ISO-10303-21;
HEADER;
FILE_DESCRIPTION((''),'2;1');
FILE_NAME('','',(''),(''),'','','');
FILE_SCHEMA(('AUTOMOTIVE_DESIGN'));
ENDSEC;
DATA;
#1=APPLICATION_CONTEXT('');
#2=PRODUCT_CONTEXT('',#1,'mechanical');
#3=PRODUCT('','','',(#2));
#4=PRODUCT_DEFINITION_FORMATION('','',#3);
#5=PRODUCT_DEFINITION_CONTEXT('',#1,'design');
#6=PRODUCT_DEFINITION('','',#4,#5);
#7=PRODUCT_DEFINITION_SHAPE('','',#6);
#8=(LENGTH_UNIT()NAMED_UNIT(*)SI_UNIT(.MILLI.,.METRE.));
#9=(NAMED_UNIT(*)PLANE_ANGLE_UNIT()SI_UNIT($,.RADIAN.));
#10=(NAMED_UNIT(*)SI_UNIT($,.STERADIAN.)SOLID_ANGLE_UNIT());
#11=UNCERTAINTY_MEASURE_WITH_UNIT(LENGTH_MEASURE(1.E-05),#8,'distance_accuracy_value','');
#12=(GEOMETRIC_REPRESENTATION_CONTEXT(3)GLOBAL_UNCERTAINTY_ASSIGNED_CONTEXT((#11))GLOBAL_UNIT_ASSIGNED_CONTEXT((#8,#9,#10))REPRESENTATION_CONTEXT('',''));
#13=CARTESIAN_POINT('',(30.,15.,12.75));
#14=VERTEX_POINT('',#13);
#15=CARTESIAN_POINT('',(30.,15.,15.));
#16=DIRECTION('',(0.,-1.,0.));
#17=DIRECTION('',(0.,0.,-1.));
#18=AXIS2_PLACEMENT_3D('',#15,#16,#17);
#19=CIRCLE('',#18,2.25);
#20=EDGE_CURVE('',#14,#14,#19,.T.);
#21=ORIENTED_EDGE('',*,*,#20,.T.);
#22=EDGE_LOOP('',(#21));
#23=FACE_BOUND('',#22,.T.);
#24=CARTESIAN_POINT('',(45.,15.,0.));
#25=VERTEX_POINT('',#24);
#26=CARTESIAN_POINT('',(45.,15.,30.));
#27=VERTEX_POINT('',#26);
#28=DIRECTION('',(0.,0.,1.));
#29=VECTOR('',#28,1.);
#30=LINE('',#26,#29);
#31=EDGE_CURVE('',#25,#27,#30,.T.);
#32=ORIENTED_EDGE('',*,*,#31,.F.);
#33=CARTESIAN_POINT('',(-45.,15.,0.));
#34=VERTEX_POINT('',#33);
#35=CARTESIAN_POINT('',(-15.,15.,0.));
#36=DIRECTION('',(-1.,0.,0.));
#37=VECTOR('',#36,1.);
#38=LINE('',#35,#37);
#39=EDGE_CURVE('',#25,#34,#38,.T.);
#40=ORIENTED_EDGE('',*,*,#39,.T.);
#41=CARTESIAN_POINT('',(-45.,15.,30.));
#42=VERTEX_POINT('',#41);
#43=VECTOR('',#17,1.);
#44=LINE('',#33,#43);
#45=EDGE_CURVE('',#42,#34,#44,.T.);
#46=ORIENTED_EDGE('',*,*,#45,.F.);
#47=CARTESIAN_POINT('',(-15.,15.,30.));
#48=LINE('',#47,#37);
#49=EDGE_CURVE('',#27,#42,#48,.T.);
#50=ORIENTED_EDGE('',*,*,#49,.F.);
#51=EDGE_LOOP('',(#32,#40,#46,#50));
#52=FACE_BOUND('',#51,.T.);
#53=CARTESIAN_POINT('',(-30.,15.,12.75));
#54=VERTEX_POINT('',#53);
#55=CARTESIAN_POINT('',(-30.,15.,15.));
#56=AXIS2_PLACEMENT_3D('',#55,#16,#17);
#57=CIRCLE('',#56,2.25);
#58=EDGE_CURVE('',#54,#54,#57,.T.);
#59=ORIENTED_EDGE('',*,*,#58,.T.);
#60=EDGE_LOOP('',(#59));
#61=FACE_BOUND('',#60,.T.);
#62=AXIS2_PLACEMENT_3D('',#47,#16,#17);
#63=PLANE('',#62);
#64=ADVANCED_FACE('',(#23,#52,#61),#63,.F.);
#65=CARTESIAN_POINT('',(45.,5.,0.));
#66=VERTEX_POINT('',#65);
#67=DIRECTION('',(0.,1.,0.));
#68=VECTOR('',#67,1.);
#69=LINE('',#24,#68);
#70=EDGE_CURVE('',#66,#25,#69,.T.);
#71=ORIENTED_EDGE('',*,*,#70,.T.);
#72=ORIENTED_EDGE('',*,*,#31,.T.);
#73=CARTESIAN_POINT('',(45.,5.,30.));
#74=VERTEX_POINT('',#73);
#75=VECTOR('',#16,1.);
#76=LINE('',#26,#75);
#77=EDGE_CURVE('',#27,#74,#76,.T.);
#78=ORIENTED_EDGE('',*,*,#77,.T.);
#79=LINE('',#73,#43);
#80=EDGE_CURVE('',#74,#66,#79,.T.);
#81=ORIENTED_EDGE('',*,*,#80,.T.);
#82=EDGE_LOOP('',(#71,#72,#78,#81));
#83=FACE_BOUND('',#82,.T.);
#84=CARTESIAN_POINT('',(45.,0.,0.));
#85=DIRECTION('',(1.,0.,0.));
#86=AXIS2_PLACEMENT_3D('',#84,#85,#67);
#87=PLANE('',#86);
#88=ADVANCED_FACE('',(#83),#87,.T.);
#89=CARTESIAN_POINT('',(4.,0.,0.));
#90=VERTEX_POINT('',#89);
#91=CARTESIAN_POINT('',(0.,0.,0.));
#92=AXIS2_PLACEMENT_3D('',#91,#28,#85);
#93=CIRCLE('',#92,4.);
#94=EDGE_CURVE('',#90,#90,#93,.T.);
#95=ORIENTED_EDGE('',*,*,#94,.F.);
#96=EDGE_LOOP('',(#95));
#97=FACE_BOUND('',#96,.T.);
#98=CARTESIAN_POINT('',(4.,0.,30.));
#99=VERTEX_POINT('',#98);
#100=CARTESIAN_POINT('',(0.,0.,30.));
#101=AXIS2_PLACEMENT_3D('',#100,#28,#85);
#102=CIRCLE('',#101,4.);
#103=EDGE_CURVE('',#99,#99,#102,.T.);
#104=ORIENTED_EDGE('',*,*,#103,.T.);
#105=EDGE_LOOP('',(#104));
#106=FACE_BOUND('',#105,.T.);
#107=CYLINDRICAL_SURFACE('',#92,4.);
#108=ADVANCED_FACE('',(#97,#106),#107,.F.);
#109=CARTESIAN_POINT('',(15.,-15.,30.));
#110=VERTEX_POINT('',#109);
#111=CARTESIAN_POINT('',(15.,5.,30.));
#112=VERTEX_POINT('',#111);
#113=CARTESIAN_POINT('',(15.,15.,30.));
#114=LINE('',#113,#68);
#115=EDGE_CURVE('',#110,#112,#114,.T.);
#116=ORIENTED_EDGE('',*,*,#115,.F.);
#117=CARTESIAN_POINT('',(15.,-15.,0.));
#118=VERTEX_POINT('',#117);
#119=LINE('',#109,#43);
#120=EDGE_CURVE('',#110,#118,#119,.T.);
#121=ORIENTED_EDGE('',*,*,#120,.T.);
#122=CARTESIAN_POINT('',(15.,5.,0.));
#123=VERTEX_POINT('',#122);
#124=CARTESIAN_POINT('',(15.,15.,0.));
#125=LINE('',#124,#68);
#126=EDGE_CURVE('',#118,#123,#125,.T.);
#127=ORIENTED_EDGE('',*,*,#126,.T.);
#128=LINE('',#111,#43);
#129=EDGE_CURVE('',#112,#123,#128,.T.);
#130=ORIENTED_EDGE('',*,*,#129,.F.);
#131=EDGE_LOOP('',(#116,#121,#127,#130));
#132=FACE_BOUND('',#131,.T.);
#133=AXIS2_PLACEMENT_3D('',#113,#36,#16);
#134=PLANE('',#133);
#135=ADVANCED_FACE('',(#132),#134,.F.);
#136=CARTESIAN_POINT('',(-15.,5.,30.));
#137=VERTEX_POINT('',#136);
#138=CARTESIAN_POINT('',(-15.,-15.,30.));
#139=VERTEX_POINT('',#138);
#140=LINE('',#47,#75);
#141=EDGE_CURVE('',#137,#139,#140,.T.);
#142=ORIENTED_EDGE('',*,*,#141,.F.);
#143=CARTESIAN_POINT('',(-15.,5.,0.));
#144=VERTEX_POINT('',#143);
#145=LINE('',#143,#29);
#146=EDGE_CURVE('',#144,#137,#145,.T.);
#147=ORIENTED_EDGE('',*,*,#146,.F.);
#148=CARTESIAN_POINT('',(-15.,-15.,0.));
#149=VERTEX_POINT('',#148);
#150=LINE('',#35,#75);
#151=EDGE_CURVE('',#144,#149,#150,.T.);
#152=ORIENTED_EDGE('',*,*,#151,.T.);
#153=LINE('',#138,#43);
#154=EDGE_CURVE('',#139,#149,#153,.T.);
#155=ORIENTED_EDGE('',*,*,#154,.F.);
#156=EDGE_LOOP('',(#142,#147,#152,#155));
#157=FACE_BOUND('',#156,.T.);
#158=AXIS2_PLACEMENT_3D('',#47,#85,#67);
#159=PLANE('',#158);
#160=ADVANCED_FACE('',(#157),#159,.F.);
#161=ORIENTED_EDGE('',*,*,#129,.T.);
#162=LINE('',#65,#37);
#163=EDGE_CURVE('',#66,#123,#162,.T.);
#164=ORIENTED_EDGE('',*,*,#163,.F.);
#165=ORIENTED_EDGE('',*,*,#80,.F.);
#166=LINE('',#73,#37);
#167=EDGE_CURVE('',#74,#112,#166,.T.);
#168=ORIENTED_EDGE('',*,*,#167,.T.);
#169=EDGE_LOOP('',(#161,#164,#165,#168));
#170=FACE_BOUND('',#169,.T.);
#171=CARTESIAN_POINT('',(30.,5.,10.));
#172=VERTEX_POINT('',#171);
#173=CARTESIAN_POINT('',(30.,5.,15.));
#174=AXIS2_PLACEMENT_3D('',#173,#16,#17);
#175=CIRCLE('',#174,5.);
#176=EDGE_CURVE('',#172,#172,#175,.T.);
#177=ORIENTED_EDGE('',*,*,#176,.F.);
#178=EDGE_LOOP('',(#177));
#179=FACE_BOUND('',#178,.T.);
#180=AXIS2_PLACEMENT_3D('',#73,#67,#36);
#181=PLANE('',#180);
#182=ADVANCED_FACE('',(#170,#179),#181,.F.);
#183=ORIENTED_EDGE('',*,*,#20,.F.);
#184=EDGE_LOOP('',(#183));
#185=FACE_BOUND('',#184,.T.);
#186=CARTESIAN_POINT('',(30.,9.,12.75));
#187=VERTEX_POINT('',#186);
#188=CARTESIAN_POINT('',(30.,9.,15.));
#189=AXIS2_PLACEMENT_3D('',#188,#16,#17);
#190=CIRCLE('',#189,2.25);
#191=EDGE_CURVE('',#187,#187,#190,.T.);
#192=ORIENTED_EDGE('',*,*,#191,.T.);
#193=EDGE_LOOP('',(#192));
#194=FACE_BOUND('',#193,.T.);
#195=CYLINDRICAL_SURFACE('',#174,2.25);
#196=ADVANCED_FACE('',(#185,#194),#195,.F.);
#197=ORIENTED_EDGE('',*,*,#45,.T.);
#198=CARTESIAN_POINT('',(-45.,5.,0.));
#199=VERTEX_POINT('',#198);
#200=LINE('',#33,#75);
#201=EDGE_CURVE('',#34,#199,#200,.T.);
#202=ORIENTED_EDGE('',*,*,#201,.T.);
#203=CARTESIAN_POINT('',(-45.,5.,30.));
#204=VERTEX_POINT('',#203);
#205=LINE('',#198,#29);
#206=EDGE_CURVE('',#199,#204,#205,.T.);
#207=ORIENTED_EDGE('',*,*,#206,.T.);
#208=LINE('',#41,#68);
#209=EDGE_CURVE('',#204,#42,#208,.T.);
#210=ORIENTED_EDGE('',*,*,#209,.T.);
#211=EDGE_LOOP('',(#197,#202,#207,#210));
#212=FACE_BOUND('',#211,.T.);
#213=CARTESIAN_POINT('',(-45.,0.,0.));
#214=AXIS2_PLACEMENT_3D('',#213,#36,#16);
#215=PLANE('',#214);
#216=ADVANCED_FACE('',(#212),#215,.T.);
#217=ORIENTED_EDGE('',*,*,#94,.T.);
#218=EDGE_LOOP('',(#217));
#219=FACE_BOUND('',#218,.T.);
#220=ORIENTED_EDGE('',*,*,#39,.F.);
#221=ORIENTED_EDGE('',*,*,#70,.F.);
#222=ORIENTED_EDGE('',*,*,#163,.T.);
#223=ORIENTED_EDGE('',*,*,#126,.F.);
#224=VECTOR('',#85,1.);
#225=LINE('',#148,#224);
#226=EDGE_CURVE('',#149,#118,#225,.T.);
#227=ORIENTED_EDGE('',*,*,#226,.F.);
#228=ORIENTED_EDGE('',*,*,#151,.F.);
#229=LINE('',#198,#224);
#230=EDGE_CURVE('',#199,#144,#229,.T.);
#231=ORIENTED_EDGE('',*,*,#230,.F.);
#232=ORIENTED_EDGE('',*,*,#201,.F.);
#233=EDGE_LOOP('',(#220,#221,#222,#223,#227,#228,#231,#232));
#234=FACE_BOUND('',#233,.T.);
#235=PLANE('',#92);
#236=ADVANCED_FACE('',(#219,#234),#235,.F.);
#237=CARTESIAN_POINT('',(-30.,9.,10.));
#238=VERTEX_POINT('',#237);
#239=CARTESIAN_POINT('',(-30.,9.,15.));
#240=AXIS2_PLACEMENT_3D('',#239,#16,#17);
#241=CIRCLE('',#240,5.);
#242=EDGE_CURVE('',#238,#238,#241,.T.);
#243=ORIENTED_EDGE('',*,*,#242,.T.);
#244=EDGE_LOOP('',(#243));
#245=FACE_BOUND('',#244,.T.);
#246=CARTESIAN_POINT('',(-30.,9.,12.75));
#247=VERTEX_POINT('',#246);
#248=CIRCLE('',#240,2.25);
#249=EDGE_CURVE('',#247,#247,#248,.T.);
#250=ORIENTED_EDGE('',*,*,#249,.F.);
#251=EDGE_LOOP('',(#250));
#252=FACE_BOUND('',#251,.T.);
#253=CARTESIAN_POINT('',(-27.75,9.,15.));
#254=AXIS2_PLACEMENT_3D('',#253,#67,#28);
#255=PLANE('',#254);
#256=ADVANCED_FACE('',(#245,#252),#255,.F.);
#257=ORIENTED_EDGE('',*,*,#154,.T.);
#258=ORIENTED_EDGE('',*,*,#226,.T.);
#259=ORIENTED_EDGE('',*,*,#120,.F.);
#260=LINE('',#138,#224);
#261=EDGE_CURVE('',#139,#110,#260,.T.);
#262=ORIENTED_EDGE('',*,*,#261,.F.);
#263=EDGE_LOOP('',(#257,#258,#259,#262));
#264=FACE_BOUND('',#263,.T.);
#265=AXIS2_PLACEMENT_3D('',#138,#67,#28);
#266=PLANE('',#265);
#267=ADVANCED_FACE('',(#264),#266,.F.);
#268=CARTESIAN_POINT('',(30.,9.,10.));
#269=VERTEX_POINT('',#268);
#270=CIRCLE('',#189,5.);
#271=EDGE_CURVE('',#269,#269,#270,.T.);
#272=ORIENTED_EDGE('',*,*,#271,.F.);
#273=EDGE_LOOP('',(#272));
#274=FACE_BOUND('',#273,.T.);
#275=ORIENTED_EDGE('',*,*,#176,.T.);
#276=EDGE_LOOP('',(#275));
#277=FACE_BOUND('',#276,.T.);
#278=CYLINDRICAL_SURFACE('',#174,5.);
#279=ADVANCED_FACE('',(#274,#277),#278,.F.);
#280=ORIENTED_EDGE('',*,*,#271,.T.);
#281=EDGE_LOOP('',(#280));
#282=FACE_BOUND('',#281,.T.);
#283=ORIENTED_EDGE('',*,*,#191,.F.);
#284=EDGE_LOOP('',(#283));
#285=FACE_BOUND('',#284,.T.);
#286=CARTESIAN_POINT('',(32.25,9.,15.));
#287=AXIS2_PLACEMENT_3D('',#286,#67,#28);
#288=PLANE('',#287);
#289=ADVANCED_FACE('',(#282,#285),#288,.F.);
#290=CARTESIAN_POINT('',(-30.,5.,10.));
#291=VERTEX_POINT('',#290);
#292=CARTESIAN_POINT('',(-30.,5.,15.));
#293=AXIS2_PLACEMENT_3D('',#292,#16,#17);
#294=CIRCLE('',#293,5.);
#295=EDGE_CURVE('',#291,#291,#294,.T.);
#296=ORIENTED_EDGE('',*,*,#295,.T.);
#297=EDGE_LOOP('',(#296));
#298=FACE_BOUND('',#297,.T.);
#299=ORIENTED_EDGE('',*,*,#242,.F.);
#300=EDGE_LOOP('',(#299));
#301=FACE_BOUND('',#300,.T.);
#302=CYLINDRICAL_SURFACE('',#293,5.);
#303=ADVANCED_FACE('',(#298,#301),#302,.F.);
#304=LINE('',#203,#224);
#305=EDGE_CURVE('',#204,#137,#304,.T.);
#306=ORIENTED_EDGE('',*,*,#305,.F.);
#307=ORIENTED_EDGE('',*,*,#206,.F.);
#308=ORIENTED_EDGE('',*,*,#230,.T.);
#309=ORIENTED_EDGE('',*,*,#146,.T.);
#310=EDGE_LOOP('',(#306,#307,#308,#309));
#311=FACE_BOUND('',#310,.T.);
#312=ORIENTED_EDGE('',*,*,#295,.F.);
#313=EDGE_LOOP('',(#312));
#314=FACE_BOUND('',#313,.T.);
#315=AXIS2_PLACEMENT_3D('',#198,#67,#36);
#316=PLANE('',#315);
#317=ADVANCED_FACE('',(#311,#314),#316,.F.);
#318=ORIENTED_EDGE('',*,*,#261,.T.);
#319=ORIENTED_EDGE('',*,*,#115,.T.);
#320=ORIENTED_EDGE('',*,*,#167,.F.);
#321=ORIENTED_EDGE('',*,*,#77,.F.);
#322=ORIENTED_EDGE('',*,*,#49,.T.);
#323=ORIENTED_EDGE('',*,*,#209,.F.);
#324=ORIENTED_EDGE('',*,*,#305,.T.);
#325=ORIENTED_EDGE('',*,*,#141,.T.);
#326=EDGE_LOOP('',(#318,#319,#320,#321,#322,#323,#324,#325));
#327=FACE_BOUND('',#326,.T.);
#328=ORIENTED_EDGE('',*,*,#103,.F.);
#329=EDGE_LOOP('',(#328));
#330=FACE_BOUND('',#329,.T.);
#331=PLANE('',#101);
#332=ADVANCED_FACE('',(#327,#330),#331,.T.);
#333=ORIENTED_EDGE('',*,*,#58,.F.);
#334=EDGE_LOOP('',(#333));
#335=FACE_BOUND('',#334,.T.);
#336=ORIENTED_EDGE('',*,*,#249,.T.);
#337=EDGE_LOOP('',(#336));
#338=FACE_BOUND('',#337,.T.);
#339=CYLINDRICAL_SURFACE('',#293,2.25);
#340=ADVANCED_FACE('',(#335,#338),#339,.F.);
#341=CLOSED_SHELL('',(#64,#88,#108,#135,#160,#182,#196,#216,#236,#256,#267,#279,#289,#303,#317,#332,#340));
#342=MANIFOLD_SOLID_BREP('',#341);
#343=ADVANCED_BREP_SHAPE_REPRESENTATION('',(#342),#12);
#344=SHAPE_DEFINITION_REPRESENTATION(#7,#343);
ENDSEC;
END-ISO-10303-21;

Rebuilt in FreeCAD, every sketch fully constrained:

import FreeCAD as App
import Part
import Sketcher
from FreeCAD import Vector


def add_polygon(sketch, points):
    """Adds a closed chain of lines whose ends are joined by coincident constraints."""
    first, n = sketch.GeometryCount, len(points)
    for a, b in zip(points, points[1:] + points[:1]):
        sketch.addGeometry(Part.LineSegment(App.Vector(*a, 0), App.Vector(*b, 0)), False)
    for i in range(n):
        sketch.addConstraint(Sketcher.Constraint("Coincident", first + i, 2, first + (i + 1) % n, 1))

doc = App.newDocument("Part")
body = doc.addObject("PartDesign::Body", "Body")

sketch1 = body.newObject("Sketcher::SketchObject", "Sketch")
sketch1.AttachmentSupport = (doc.getObject("XY_Plane"), [""])
sketch1.MapMode = "FlatFace"
add_polygon(sketch1, [(-15, 15), (-15, -15), (15, -15), (15, 15)])
sketch1.addConstraint([
    Sketcher.Constraint("Vertical", 0),
    Sketcher.Constraint("Horizontal", 1),
    Sketcher.Constraint("Vertical", 2),
    Sketcher.Constraint("Horizontal", 3),
    Sketcher.Constraint("Symmetric", 0, 2, 2, 2, -1, 1),
    Sketcher.Constraint("Equal", 3, 0),
    Sketcher.Constraint("DistanceX", 1, 1, 1, 2, 30.0),
])
pad1 = body.newObject("PartDesign::Pad", "Pad")
pad1.Profile = sketch1
pad1.Length = 30

sketch2 = body.newObject("Sketcher::SketchObject", "Sketch001")
sketch2.AttachmentSupport = (doc.getObject("XY_Plane"), [""])
sketch2.MapMode = "FlatFace"
sketch2.AttachmentOffset = App.Placement(Vector(0, 0, 30), App.Rotation())
sketch2.addGeometry(Part.Circle(Vector(0, 0, 0), Vector(0, 0, 1), 4), False)
sketch2.addConstraint([
    Sketcher.Constraint("Coincident", 0, 3, -1, 1),
    Sketcher.Constraint("Diameter", 0, 8.0),
])
pocket1 = body.newObject("PartDesign::Pocket", "Pocket")
pocket1.Profile = sketch2
pocket1.Length = 30

sketch3 = body.newObject("Sketcher::SketchObject", "Sketch002")
sketch3.AttachmentSupport = (doc.getObject("YZ_Plane"), [""])
sketch3.MapMode = "FlatFace"
sketch3.AttachmentOffset = App.Placement(Vector(0, 0, 15), App.Rotation())
add_polygon(sketch3, [(15, 30), (5, 30), (5, 0), (15, 0)])
sketch3.addConstraint([
    Sketcher.Constraint("Horizontal", 0),
    Sketcher.Constraint("Vertical", 1),
    Sketcher.Constraint("Horizontal", 2),
    Sketcher.Constraint("Vertical", 3),
    Sketcher.Constraint("PointOnObject", 1, 2, -1),
    Sketcher.Constraint("DistanceX", 0, 2, 0, 1, 10.0),
    Sketcher.Constraint("DistanceY", 1, 2, 1, 1, 30.0),
    Sketcher.Constraint("DistanceX", -1, 1, 0, 2, 5.0),
])
pad2 = body.newObject("PartDesign::Pad", "Pad001")
pad2.Profile = sketch3
pad2.Length = 30

sketch4 = body.newObject("Sketcher::SketchObject", "Sketch003")
sketch4.AttachmentSupport = (doc.getObject("YZ_Plane"), [""])
sketch4.MapMode = "FlatFace"
sketch4.AttachmentOffset = App.Placement(Vector(0, 0, -15), App.Rotation())
add_polygon(sketch4, [(15, 0), (5, 0), (5, 30), (15, 30)])
sketch4.addConstraint([
    Sketcher.Constraint("Horizontal", 0),
    Sketcher.Constraint("Vertical", 1),
    Sketcher.Constraint("Horizontal", 2),
    Sketcher.Constraint("Vertical", 3),
    Sketcher.Constraint("PointOnObject", 0, 2, -1),
    Sketcher.Constraint("DistanceX", 0, 2, 0, 1, 10.0),
    Sketcher.Constraint("DistanceY", 1, 1, 1, 2, 30.0),
    Sketcher.Constraint("DistanceX", -1, 1, 0, 2, 5.0),
])
pad3 = body.newObject("PartDesign::Pad", "Pad002")
pad3.Profile = sketch4
pad3.Length = 30
pad3.Reversed = True

sketch5 = body.newObject("Sketcher::SketchObject", "Sketch004")
sketch5.AttachmentSupport = (doc.getObject("XZ_Plane"), [""])
sketch5.MapMode = "FlatFace"
sketch5.AttachmentOffset = App.Placement(Vector(0, 0, -5), App.Rotation())
sketch5.addGeometry([
    Part.Circle(Vector(30, 15, 0), Vector(0, 0, 1), 2.2),
    Part.Circle(Vector(-30, 15, 0), Vector(0, 0, 1), 2.2),
], False)
sketch5.addConstraint([
    Sketcher.Constraint("Equal", 0, 1),
    Sketcher.Constraint("Symmetric", 0, 3, 1, 3, -2),
    Sketcher.Constraint("Diameter", 0, 4.5),
    Sketcher.Constraint("DistanceX", -1, 1, 0, 3, 30.0),
    Sketcher.Constraint("DistanceY", -1, 1, 0, 3, 15.0),
])
doc.recompute()
hole = body.newObject("PartDesign::Hole", "Hole")
hole.Profile = sketch5
hole.ThreadType = "None"
hole.Diameter = 4.5
hole.DepthType = "ThroughAll"
hole.HoleCutType = "Counterbore"
hole.HoleCutDiameter = 10
hole.HoleCutDepth = 4

doc.recompute()
